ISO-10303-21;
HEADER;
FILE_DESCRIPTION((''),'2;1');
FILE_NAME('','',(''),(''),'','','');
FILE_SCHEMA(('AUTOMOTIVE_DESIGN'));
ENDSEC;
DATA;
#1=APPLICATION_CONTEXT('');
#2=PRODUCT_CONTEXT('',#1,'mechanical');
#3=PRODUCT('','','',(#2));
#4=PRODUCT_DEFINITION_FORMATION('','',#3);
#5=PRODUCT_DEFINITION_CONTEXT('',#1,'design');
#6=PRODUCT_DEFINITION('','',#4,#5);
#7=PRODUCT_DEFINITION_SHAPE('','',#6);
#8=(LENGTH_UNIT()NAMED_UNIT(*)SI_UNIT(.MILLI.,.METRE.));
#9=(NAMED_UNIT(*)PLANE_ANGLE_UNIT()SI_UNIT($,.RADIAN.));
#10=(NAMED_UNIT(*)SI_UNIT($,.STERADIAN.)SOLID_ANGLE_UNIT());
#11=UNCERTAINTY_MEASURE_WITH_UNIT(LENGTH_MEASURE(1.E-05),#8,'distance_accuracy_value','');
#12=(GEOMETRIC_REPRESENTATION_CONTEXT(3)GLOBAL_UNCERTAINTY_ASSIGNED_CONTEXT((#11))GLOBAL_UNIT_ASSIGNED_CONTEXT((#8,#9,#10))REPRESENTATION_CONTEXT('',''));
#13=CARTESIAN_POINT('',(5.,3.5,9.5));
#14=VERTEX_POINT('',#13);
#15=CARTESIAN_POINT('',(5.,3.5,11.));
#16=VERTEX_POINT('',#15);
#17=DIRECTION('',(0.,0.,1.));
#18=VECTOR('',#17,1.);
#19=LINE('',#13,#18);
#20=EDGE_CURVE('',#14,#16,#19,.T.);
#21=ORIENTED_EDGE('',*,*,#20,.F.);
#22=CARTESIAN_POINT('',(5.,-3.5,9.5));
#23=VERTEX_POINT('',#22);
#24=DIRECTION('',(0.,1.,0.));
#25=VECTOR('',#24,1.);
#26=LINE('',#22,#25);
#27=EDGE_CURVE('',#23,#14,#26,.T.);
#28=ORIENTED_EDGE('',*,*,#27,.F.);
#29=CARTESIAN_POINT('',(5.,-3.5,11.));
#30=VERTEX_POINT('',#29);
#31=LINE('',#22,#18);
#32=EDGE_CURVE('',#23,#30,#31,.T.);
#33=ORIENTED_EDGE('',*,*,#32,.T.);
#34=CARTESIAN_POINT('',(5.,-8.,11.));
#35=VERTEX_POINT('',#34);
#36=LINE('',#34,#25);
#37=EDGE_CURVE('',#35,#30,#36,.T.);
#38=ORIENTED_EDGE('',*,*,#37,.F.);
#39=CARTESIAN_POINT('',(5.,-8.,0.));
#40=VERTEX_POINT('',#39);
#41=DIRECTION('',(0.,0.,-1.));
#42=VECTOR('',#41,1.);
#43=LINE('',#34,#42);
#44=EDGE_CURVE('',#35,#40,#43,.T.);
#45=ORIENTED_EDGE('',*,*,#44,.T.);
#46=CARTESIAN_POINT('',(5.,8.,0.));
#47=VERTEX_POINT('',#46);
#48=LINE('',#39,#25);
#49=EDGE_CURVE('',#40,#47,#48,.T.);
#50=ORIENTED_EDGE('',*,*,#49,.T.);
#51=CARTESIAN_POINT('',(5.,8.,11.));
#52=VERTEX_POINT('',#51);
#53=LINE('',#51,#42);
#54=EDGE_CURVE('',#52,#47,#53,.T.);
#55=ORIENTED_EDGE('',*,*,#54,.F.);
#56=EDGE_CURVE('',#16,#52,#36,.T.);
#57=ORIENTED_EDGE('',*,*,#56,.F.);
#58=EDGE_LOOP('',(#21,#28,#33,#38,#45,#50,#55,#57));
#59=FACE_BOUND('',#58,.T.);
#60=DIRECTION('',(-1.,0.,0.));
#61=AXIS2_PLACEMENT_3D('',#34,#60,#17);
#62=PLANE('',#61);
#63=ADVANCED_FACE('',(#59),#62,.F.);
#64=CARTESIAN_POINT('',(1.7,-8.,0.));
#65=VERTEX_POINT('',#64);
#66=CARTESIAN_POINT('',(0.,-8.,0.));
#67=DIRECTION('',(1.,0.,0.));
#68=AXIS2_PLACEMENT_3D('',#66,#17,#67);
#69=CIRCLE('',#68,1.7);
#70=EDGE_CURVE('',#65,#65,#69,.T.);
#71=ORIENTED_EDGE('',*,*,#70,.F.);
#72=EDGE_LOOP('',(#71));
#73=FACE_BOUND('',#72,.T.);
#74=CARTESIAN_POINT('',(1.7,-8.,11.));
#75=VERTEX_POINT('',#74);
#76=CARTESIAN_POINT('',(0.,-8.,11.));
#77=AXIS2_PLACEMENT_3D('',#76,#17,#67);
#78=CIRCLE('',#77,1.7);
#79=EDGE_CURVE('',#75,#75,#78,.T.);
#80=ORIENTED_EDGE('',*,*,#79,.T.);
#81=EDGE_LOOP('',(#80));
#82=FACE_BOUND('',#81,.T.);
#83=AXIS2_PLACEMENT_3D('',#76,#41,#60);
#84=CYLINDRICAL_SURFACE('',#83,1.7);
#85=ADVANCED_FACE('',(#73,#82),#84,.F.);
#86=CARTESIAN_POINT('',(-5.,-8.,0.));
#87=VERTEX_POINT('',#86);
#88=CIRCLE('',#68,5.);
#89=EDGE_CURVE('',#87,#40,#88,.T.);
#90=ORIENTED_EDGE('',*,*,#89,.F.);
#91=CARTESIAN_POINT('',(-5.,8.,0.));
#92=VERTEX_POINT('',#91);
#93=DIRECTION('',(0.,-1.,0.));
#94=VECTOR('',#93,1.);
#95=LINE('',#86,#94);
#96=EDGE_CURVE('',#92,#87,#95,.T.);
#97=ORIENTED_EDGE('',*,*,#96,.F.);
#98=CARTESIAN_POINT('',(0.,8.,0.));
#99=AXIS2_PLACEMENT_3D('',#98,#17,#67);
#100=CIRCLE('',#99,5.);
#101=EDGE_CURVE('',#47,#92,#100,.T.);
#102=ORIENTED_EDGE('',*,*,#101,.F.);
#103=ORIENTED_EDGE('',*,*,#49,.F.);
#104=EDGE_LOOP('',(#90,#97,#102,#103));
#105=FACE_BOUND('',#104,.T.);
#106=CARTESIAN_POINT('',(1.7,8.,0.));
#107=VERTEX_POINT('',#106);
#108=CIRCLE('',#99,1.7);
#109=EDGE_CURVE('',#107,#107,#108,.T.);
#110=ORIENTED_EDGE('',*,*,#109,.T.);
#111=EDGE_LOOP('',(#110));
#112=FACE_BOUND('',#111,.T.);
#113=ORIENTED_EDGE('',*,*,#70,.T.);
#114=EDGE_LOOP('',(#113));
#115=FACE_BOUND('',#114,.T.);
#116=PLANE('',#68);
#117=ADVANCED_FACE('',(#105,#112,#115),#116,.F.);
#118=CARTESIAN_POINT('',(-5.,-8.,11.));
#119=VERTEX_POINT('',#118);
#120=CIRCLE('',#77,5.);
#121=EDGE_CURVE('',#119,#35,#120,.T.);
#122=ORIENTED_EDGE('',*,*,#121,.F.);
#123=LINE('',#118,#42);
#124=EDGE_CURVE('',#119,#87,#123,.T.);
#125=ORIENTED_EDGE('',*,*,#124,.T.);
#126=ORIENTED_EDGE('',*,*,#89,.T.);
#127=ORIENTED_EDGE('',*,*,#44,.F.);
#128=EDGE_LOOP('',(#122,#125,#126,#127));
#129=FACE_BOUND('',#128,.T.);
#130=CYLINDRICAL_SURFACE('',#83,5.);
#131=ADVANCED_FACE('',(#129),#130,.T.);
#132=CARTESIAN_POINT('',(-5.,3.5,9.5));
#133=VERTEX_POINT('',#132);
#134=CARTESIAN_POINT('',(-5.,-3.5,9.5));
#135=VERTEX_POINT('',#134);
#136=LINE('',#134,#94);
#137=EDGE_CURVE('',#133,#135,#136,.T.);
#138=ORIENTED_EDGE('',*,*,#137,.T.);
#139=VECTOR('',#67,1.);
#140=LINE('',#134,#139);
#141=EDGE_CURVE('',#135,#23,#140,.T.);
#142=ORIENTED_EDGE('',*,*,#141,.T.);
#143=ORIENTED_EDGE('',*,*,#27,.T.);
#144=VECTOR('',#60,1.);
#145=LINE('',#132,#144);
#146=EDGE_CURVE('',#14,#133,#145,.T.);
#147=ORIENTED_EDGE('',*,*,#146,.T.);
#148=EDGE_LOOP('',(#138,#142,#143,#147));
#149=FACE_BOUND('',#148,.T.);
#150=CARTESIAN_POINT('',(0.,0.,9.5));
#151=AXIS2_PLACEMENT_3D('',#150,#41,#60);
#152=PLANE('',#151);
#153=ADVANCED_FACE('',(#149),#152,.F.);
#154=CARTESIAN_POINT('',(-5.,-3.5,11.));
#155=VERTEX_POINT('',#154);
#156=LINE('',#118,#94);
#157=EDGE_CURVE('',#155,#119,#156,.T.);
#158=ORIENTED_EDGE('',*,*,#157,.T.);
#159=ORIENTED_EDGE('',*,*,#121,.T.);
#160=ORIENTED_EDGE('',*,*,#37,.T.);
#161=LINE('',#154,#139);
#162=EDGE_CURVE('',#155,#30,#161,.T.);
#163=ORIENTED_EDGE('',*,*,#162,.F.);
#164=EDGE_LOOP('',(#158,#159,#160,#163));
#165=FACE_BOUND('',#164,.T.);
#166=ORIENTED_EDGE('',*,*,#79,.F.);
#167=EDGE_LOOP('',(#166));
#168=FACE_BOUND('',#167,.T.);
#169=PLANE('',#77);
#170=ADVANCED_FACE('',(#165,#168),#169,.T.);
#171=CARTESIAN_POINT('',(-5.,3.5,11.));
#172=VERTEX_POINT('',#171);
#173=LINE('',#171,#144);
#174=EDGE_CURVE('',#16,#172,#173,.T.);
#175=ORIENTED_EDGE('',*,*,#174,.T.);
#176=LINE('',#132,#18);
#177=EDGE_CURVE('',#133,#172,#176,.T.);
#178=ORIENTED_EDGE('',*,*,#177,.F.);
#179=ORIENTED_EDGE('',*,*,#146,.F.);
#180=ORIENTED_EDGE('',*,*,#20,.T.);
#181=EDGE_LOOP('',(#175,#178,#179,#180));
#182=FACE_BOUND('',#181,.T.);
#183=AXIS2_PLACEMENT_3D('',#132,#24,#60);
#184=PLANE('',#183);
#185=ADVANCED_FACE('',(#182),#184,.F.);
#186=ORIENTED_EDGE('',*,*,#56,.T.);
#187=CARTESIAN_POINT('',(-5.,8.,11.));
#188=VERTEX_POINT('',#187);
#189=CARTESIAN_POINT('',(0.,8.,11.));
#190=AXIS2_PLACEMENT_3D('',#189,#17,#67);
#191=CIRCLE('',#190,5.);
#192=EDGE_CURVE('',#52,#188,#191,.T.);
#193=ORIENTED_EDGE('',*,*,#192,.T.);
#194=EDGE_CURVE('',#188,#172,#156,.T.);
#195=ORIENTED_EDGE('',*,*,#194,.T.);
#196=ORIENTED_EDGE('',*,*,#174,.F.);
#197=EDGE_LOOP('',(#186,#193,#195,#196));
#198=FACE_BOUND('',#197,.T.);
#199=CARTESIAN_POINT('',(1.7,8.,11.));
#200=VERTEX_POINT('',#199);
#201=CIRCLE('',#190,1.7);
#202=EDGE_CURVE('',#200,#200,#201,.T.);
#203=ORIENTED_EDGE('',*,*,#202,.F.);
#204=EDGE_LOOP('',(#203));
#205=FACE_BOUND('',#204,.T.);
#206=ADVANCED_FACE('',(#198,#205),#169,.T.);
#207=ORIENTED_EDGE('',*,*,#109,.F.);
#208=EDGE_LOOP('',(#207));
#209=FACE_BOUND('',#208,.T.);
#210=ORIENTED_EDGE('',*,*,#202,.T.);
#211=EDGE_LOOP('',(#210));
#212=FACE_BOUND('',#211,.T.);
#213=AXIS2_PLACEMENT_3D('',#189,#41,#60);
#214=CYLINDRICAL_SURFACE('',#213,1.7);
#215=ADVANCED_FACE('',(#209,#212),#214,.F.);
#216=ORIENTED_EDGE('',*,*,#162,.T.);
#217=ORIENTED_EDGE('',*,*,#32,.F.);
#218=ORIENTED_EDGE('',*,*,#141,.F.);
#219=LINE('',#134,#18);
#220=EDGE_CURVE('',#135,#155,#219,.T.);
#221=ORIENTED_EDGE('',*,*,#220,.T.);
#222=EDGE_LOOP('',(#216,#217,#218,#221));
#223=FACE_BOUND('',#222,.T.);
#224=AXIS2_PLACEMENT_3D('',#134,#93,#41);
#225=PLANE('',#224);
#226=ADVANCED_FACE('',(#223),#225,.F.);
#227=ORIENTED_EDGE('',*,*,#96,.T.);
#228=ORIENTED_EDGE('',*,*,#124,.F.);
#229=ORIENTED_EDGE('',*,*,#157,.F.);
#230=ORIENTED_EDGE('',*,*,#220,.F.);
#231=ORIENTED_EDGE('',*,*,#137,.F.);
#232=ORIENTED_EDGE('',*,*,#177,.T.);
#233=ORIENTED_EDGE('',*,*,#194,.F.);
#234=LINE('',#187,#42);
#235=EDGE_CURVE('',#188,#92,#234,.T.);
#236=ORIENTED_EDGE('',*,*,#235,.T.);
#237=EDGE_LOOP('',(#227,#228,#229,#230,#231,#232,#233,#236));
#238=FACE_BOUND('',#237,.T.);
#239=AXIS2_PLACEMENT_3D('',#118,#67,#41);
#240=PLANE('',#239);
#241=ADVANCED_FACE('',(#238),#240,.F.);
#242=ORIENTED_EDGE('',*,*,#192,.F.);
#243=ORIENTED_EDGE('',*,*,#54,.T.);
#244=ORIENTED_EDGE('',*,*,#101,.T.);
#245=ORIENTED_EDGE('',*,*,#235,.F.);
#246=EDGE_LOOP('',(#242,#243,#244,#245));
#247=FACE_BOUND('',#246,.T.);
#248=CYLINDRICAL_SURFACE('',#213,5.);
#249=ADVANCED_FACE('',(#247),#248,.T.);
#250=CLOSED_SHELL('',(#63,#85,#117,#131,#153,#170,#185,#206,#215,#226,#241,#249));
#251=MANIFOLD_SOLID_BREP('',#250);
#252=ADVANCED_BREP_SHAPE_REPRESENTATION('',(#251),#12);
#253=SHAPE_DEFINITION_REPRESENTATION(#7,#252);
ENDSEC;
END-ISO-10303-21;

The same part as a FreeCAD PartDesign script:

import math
import FreeCAD as App
import Part
import Sketcher

V = App.Vector


def add_polygon(sketch, points):
    """Adds a closed chain of lines whose ends are joined by coincident constraints."""
    first, n = sketch.GeometryCount, len(points)
    for a, b in zip(points, points[1:] + points[:1]):
        sketch.addGeometry(Part.LineSegment(App.Vector(*a, 0), App.Vector(*b, 0)), False)
    for i in range(n):
        sketch.addConstraint(Sketcher.Constraint("Coincident", first + i, 2, first + (i + 1) % n, 1))

doc = App.newDocument("Part")
body = doc.addObject("PartDesign::Body", "Body")

sketch1 = body.newObject("Sketcher::SketchObject", "Sketch")
sketch1.AttachmentSupport = (doc.getObject("XY_Plane"), [""])
sketch1.MapMode = "FlatFace"
sketch1.addGeometry(Part.LineSegment(V(-5, 8, 0), V(-5, -8, 0)), False)
sketch1.addGeometry(Part.ArcOfCircle(Part.Circle(V(0, -8, 0), V(0, 0, 1), 5), math.radians(180), math.radians(360)), False)
sketch1.addGeometry(Part.LineSegment(V(5, -8, 0), V(5, 8, 0)), False)
sketch1.addGeometry(Part.ArcOfCircle(Part.Circle(V(0, 8, 0), V(0, 0, 1), 5), math.radians(0), math.radians(180)), False)
sketch1.addGeometry(Part.Circle(V(0, -8, 0), V(0, 0, 1), 1.7), False)
sketch1.addGeometry(Part.Circle(V(0, 8, 0), V(0, 0, 1), 1.7), False)
sketch1.addConstraint(Sketcher.Constraint("Tangent", 0, 2, 1, 1))
sketch1.addConstraint(Sketcher.Constraint("Tangent", 1, 2, 2, 1))
sketch1.addConstraint(Sketcher.Constraint("Tangent", 2, 2, 3, 1))
sketch1.addConstraint(Sketcher.Constraint("Tangent", 3, 2, 0, 1))
sketch1.addConstraint(Sketcher.Constraint("Vertical", 0))
sketch1.addConstraint(Sketcher.Constraint("Vertical", 2))
sketch1.addConstraint(Sketcher.Constraint("Coincident", 4, 3, 1, 3))
sketch1.addConstraint(Sketcher.Constraint("Coincident", 5, 3, 3, 3))
sketch1.addConstraint(Sketcher.Constraint("Equal", 4, 5))
sketch1.addConstraint(Sketcher.Constraint("Symmetric", 1, 3, 3, 3, -1, 1))
sketch1.addConstraint(Sketcher.Constraint("Radius", 1, 5.0))
sketch1.addConstraint(Sketcher.Constraint("Diameter", 4, 3.4))
sketch1.addConstraint(Sketcher.Constraint("DistanceY", 0, 2, 0, 1, 16.0))
pad1 = body.newObject("PartDesign::Pad", "Pad")
pad1.Profile = sketch1
pad1.Length = 11

sketch2 = body.newObject("Sketcher::SketchObject", "Sketch001")
sketch2.AttachmentSupport = (doc.getObject("XY_Plane"), [""])
sketch2.MapMode = "FlatFace"
sketch2.AttachmentOffset = App.Placement(V(0, 0, 11), App.Rotation())
add_polygon(sketch2, [(-5, 3.5), (-5, -3.5), (5, -3.5), (5, 3.5)])
sketch2.addConstraint(Sketcher.Constraint("Vertical", 0))
sketch2.addConstraint(Sketcher.Constraint("Horizontal", 1))
sketch2.addConstraint(Sketcher.Constraint("Vertical", 2))
sketch2.addConstraint(Sketcher.Constraint("Horizontal", 3))
sketch2.addConstraint(Sketcher.Constraint("Symmetric", 0, 2, 2, 2, -1, 1))
sketch2.addConstraint(Sketcher.Constraint("DistanceX", 1, 1, 1, 2, 10.0))
sketch2.addConstraint(Sketcher.Constraint("DistanceY", 0, 2, 0, 1, 7.0))
pocket1 = body.newObject("PartDesign::Pocket", "Pocket")
pocket1.Profile = sketch2
pocket1.Length = 1.5

doc.recompute()
